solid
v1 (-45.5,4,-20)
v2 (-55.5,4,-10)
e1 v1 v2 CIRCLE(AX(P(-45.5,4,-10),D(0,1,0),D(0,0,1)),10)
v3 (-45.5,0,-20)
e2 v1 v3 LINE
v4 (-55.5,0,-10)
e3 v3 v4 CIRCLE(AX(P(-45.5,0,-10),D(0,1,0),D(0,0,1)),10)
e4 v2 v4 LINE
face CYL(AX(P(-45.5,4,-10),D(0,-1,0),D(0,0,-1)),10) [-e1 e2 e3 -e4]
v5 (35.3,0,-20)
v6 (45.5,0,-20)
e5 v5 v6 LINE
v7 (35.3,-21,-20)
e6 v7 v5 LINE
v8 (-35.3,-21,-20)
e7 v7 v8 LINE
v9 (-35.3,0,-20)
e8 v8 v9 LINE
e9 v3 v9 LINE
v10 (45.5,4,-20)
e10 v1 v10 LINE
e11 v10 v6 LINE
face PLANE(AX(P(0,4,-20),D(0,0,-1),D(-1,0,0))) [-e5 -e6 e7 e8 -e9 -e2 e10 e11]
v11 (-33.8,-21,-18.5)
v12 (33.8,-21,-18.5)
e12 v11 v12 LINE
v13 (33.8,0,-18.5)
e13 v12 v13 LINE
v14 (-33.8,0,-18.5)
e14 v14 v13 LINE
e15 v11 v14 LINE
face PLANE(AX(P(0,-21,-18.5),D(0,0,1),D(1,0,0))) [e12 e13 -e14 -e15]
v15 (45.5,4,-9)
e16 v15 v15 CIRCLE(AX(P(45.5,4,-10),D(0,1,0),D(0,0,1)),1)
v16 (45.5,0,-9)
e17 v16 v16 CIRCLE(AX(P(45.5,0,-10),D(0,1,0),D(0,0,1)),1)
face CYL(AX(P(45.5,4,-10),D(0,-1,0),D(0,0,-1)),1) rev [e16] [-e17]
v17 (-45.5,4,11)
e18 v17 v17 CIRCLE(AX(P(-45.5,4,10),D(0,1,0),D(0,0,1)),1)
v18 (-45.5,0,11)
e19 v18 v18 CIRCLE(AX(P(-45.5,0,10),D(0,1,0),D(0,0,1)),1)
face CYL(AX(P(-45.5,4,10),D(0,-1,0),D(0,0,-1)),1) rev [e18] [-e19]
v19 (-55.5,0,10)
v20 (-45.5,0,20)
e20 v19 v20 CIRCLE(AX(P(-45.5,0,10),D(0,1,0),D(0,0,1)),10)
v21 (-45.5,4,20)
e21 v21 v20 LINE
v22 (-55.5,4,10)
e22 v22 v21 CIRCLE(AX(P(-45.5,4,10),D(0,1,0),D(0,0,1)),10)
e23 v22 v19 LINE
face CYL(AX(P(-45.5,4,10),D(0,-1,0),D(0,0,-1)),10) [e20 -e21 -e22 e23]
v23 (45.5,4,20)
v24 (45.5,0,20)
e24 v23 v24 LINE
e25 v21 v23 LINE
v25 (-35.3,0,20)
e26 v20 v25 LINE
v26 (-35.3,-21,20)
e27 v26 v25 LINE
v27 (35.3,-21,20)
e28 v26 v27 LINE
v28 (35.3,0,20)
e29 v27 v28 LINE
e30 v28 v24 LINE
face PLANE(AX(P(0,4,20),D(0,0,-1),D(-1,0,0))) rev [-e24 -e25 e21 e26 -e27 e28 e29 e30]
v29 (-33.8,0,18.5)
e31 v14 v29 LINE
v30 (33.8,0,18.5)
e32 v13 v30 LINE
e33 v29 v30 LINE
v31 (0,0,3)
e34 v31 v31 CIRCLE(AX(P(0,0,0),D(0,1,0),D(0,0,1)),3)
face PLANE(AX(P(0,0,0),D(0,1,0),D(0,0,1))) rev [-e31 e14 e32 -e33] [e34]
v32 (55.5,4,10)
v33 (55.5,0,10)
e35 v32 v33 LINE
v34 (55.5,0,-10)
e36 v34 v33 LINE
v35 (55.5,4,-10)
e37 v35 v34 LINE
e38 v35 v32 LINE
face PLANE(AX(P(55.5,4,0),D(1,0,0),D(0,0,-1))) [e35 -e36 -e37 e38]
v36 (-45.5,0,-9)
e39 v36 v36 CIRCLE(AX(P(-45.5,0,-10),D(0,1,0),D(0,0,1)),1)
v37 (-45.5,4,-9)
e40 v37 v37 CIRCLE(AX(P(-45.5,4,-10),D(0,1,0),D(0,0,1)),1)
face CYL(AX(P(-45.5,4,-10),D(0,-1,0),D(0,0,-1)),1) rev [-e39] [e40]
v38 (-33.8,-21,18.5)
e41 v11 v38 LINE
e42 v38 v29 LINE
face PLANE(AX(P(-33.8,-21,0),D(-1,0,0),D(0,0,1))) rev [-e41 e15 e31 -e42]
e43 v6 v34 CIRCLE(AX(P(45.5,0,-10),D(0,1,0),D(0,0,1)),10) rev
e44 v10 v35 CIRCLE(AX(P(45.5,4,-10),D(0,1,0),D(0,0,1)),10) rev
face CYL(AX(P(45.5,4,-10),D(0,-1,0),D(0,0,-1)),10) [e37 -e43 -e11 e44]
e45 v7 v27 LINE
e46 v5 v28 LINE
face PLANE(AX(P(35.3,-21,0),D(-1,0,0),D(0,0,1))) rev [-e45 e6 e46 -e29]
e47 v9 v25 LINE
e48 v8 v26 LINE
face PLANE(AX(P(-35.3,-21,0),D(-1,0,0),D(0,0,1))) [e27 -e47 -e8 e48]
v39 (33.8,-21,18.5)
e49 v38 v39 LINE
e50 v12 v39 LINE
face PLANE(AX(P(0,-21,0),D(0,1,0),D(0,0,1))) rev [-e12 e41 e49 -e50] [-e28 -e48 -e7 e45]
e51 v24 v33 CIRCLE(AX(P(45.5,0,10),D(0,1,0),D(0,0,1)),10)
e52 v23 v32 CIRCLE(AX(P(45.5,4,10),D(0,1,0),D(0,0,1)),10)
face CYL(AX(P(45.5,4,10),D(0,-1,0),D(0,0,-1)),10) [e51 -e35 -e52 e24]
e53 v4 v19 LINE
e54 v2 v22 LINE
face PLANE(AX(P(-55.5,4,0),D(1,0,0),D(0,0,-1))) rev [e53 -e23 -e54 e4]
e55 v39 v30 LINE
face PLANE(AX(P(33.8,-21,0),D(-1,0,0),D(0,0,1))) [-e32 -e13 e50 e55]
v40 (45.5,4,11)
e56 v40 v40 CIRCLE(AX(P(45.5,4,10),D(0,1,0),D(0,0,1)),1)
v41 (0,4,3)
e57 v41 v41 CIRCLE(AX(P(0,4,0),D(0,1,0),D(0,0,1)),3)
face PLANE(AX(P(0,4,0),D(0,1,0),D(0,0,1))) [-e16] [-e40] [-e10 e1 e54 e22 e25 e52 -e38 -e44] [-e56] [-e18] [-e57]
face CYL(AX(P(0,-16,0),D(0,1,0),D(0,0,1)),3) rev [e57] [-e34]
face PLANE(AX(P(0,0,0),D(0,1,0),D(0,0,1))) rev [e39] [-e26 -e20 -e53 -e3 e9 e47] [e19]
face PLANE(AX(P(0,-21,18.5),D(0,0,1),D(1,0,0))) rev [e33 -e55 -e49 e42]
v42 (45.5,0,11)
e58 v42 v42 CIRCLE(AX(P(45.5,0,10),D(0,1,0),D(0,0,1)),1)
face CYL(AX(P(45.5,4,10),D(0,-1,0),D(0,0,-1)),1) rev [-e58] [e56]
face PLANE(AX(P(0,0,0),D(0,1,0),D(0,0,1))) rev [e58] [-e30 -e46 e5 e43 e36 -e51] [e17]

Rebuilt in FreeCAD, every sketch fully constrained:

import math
import FreeCAD as App
import Part
import Sketcher

doc = App.newDocument("Part")
body = doc.addObject("PartDesign::Body", "Body")

sketch1 = doc.addObject("Sketcher::SketchObject", "Sketch")
body.addObject(sketch1)
sketch1.AttachmentSupport = (doc.XZ_Plane, [""])
sketch1.MapMode = "FlatFace"
sketch1.addGeometry(Part.LineSegment(App.Vector(45.5, -20, 0), App.Vector(-45.5, -20, 0)), False)
sketch1.addGeometry(Part.ArcOfCircle(Part.Circle(App.Vector(-45.5, -10, 0), App.Vector(0, 0, 1), 10), math.radians(180), math.radians(270)), False)
sketch1.addGeometry(Part.LineSegment(App.Vector(-55.5, -10, 0), App.Vector(-55.5, 10, 0)), False)
sketch1.addGeometry(Part.ArcOfCircle(Part.Circle(App.Vector(-45.5, 10, 0), App.Vector(0, 0, 1), 10), math.radians(90), math.radians(180)), False)
sketch1.addGeometry(Part.LineSegment(App.Vector(-45.5, 20, 0), App.Vector(45.5, 20, 0)), False)
sketch1.addGeometry(Part.ArcOfCircle(Part.Circle(App.Vector(45.5, 10, 0), App.Vector(0, 0, 1), 10), math.radians(0), math.radians(90)), False)
sketch1.addGeometry(Part.LineSegment(App.Vector(55.5, 10, 0), App.Vector(55.5, -10, 0)), False)
sketch1.addGeometry(Part.ArcOfCircle(Part.Circle(App.Vector(45.5, -10, 0), App.Vector(0, 0, 1), 10), math.radians(-90), math.radians(0)), False)
sketch1.addGeometry(Part.Circle(App.Vector(-45.5, 10, 0), App.Vector(0, 0, 1), 1), False)
sketch1.addGeometry(Part.Circle(App.Vector(45.5, 10, 0), App.Vector(0, 0, 1), 1), False)
sketch1.addGeometry(Part.Circle(App.Vector(-45.5, -10, 0), App.Vector(0, 0, 1), 1), False)
sketch1.addGeometry(Part.Circle(App.Vector(0, 0, 0), App.Vector(0, 0, 1), 1), False)
sketch1.addGeometry(Part.Circle(App.Vector(45.5, -10, 0), App.Vector(0, 0, 1), 1), False)
sketch1.addConstraint(Sketcher.Constraint("Tangent", 0, 2, 1, 2))
sketch1.addConstraint(Sketcher.Constraint("Tangent", 1, 1, 2, 1))
sketch1.addConstraint(Sketcher.Constraint("Tangent", 2, 2, 3, 2))
sketch1.addConstraint(Sketcher.Constraint("Tangent", 3, 1, 4, 1))
sketch1.addConstraint(Sketcher.Constraint("Tangent", 4, 2, 5, 2))
sketch1.addConstraint(Sketcher.Constraint("Tangent", 5, 1, 6, 1))
sketch1.addConstraint(Sketcher.Constraint("Tangent", 6, 2, 7, 2))
sketch1.addConstraint(Sketcher.Constraint("Tangent", 7, 1, 0, 1))
sketch1.addConstraint(Sketcher.Constraint("Horizontal", 0))
sketch1.addConstraint(Sketcher.Constraint("Vertical", 2))
sketch1.addConstraint(Sketcher.Constraint("Horizontal", 4))
sketch1.addConstraint(Sketcher.Constraint("Vertical", 6))
sketch1.addConstraint(Sketcher.Constraint("Coincident", 11, 3, -1, 1))
sketch1.addConstraint(Sketcher.Constraint("Coincident", 8, 3, 3, 3))
sketch1.addConstraint(Sketcher.Constraint("Coincident", 9, 3, 5, 3))
sketch1.addConstraint(Sketcher.Constraint("Coincident", 10, 3, 1, 3))
sketch1.addConstraint(Sketcher.Constraint("Coincident", 12, 3, 7, 3))
sketch1.addConstraint(Sketcher.Constraint("Equal", 1, 3))
sketch1.addConstraint(Sketcher.Constraint("Equal", 3, 5))
sketch1.addConstraint(Sketcher.Constraint("Equal", 5, 7))
sketch1.addConstraint(Sketcher.Constraint("Equal", 8, 9))
sketch1.addConstraint(Sketcher.Constraint("Equal", 9, 10))
sketch1.addConstraint(Sketcher.Constraint("Equal", 10, 11))
sketch1.addConstraint(Sketcher.Constraint("Equal", 11, 12))
sketch1.addConstraint(Sketcher.Constraint("Symmetric", 1, 3, 5, 3, -1, 1))
sketch1.addConstraint(Sketcher.Constraint("Diameter", 8, 2.0))
sketch1.addConstraint(Sketcher.Constraint("Radius", 1, 10.0))
sketch1.addConstraint(Sketcher.Constraint("DistanceX", 0, 2, 0, 1, 91.0))
sketch1.addConstraint(Sketcher.Constraint("DistanceY", 2, 1, 2, 2, 20.0))
pad1 = doc.addObject("PartDesign::Pad", "Pad")
body.addObject(pad1)
pad1.Profile = sketch1
pad1.Length = 4
pad1.Reversed = True

sketch2 = doc.addObject("Sketcher::SketchObject", "Sketch001")
body.addObject(sketch2)
sketch2.AttachmentSupport = (doc.XZ_Plane, [""])
sketch2.MapMode = "FlatFace"
sketch2.AttachmentOffset = App.Placement(App.Vector(0, 0, -4), App.Rotation())
sketch2.addGeometry(Part.LineSegment(App.Vector(-35, 20, 0), App.Vector(35, 20, 0)), False)
sketch2.addGeometry(Part.LineSegment(App.Vector(35, 20, 0), App.Vector(35, -20, 0)), False)
sketch2.addGeometry(Part.LineSegment(App.Vector(35, -20, 0), App.Vector(-35, -20, 0)), False)
sketch2.addGeometry(Part.LineSegment(App.Vector(-35, -20, 0), App.Vector(-35, 20, 0)), False)
sketch2.addGeometry(Part.LineSegment(App.Vector(34, -18, 0), App.Vector(34, 18, 0)), False)
sketch2.addGeometry(Part.LineSegment(App.Vector(34, 18, 0), App.Vector(-34, 18, 0)), False)
sketch2.addGeometry(Part.LineSegment(App.Vector(-34, 18, 0), App.Vector(-34, -18, 0)), False)
sketch2.addGeometry(Part.LineSegment(App.Vector(-34, -18, 0), App.Vector(34, -18, 0)), False)
sketch2.addConstraint(Sketcher.Constraint("Coincident", 0, 2, 1, 1))
sketch2.addConstraint(Sketcher.Constraint("Coincident", 1, 2, 2, 1))
sketch2.addConstraint(Sketcher.Constraint("Coincident", 2, 2, 3, 1))
sketch2.addConstraint(Sketcher.Constraint("Coincident", 3, 2, 0, 1))
sketch2.addConstraint(Sketcher.Constraint("Coincident", 4, 2, 5, 1))
sketch2.addConstraint(Sketcher.Constraint("Coincident", 5, 2, 6, 1))
sketch2.addConstraint(Sketcher.Constraint("Coincident", 6, 2, 7, 1))
sketch2.addConstraint(Sketcher.Constraint("Coincident", 7, 2, 4, 1))
sketch2.addConstraint(Sketcher.Constraint("Horizontal", 0))
sketch2.addConstraint(Sketcher.Constraint("Vertical", 1))
sketch2.addConstraint(Sketcher.Constraint("Horizontal", 2))
sketch2.addConstraint(Sketcher.Constraint("Vertical", 3))
sketch2.addConstraint(Sketcher.Constraint("Vertical", 4))
sketch2.addConstraint(Sketcher.Constraint("Horizontal", 5))
sketch2.addConstraint(Sketcher.Constraint("Vertical", 6))
sketch2.addConstraint(Sketcher.Constraint("Horizontal", 7))
sketch2.addConstraint(Sketcher.Constraint("Symmetric", 0, 2, 2, 2, -1, 1))
sketch2.addConstraint(Sketcher.Constraint("Symmetric", 4, 2, 6, 2, -1, 1))
sketch2.addConstraint(Sketcher.Constraint("DistanceY", 1, 2, 1, 1, 40.0))
sketch2.addConstraint(Sketcher.Constraint("DistanceY", 4, 1, 4, 2, 37.0))
sketch2.addConstraint(Sketcher.Constraint("DistanceX", 0, 1, 0, 2, 70.6))
sketch2.addConstraint(Sketcher.Constraint("DistanceX", 5, 2, 5, 1, 67.6))
pad2 = doc.addObject("PartDesign::Pad", "Pad001")
body.addObject(pad2)
pad2.Profile = sketch2
pad2.Length = 25

sketch3 = doc.addObject("Sketcher::SketchObject", "Sketch002")
body.addObject(sketch3)
sketch3.AttachmentSupport = (doc.XZ_Plane, [""])
sketch3.MapMode = "FlatFace"
sketch3.AttachmentOffset = App.Placement(App.Vector(0, 0, -4), App.Rotation())
sketch3.addGeometry(Part.Circle(App.Vector(0, 0, 0), App.Vector(0, 0, 1), 3), False)
sketch3.addConstraint(Sketcher.Constraint("Coincident", 0, 3, -1, 1))
sketch3.addConstraint(Sketcher.Constraint("Diameter", 0, 6.0))
pocket1 = doc.addObject("PartDesign::Pocket", "Pocket")
body.addObject(pocket1)
pocket1.Profile = sketch3
pocket1.Length = 20
pocket1.Reversed = True

doc.recompute()
